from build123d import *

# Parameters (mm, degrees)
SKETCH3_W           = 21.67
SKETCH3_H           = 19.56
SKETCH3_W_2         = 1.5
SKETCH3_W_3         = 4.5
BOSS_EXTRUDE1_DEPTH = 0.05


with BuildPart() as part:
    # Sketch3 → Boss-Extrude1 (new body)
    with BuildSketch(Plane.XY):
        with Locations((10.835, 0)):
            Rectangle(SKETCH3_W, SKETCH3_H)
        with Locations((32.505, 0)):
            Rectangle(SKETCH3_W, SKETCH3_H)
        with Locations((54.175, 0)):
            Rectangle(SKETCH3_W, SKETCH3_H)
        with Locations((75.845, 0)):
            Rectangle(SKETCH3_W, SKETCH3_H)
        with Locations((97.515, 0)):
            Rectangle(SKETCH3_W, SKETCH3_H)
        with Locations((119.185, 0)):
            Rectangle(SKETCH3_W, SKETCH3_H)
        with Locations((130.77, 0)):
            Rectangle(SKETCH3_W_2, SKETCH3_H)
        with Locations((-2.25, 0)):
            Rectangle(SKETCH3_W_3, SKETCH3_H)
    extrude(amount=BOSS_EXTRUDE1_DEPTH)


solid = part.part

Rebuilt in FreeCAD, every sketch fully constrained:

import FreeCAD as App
import Part
import Sketcher
Q = App.Units.Quantity

doc = App.newDocument("Part")
body = doc.addObject("PartDesign::Body", "Body")

sketch1 = doc.addObject("Sketcher::SketchObject", "Sketch")
body.addObject(sketch1)
sketch1.AttachmentSupport = (doc.XY_Plane, [""])
sketch1.MapMode = "FlatFace"
sketch1.addGeometry([
    Part.LineSegment(App.Vector(132, -10, 0), App.Vector(132, 10, 0)),
    Part.LineSegment(App.Vector(132, 10, 0), App.Vector(-4, 10, 0)),
    Part.LineSegment(App.Vector(-4, 10, 0), App.Vector(-4, -10, 0)),
    Part.LineSegment(App.Vector(-4, -10, 0), App.Vector(132, -10, 0)),
], False)
sketch1.addConstraint([
    Sketcher.Constraint("Coincident", 0, 2, 1, 1),
    Sketcher.Constraint("Coincident", 1, 2, 2, 1),
    Sketcher.Constraint("Coincident", 2, 2, 3, 1),
    Sketcher.Constraint("Coincident", 3, 2, 0, 1),
    Sketcher.Constraint("Vertical", 0),
    Sketcher.Constraint("Horizontal", 1),
    Sketcher.Constraint("Vertical", 2),
    Sketcher.Constraint("Horizontal", 3),
    Sketcher.Constraint("DistanceX", 1, 2, 1, 1, Q("136.02 mm")),
    Sketcher.Constraint("DistanceY", 0, 1, 0, 2, Q("19.56 mm")),
    Sketcher.Constraint("DistanceX", 1, 2, -1, 1, Q("4.5 mm")),
    Sketcher.Constraint("DistanceY", -1, 1, 0, 2, Q("9.78 mm")),
])
pad1 = doc.addObject("PartDesign::Pad", "Pad")
body.addObject(pad1)
pad1.Profile = sketch1
pad1.Length = 0.05

doc.recompute()
